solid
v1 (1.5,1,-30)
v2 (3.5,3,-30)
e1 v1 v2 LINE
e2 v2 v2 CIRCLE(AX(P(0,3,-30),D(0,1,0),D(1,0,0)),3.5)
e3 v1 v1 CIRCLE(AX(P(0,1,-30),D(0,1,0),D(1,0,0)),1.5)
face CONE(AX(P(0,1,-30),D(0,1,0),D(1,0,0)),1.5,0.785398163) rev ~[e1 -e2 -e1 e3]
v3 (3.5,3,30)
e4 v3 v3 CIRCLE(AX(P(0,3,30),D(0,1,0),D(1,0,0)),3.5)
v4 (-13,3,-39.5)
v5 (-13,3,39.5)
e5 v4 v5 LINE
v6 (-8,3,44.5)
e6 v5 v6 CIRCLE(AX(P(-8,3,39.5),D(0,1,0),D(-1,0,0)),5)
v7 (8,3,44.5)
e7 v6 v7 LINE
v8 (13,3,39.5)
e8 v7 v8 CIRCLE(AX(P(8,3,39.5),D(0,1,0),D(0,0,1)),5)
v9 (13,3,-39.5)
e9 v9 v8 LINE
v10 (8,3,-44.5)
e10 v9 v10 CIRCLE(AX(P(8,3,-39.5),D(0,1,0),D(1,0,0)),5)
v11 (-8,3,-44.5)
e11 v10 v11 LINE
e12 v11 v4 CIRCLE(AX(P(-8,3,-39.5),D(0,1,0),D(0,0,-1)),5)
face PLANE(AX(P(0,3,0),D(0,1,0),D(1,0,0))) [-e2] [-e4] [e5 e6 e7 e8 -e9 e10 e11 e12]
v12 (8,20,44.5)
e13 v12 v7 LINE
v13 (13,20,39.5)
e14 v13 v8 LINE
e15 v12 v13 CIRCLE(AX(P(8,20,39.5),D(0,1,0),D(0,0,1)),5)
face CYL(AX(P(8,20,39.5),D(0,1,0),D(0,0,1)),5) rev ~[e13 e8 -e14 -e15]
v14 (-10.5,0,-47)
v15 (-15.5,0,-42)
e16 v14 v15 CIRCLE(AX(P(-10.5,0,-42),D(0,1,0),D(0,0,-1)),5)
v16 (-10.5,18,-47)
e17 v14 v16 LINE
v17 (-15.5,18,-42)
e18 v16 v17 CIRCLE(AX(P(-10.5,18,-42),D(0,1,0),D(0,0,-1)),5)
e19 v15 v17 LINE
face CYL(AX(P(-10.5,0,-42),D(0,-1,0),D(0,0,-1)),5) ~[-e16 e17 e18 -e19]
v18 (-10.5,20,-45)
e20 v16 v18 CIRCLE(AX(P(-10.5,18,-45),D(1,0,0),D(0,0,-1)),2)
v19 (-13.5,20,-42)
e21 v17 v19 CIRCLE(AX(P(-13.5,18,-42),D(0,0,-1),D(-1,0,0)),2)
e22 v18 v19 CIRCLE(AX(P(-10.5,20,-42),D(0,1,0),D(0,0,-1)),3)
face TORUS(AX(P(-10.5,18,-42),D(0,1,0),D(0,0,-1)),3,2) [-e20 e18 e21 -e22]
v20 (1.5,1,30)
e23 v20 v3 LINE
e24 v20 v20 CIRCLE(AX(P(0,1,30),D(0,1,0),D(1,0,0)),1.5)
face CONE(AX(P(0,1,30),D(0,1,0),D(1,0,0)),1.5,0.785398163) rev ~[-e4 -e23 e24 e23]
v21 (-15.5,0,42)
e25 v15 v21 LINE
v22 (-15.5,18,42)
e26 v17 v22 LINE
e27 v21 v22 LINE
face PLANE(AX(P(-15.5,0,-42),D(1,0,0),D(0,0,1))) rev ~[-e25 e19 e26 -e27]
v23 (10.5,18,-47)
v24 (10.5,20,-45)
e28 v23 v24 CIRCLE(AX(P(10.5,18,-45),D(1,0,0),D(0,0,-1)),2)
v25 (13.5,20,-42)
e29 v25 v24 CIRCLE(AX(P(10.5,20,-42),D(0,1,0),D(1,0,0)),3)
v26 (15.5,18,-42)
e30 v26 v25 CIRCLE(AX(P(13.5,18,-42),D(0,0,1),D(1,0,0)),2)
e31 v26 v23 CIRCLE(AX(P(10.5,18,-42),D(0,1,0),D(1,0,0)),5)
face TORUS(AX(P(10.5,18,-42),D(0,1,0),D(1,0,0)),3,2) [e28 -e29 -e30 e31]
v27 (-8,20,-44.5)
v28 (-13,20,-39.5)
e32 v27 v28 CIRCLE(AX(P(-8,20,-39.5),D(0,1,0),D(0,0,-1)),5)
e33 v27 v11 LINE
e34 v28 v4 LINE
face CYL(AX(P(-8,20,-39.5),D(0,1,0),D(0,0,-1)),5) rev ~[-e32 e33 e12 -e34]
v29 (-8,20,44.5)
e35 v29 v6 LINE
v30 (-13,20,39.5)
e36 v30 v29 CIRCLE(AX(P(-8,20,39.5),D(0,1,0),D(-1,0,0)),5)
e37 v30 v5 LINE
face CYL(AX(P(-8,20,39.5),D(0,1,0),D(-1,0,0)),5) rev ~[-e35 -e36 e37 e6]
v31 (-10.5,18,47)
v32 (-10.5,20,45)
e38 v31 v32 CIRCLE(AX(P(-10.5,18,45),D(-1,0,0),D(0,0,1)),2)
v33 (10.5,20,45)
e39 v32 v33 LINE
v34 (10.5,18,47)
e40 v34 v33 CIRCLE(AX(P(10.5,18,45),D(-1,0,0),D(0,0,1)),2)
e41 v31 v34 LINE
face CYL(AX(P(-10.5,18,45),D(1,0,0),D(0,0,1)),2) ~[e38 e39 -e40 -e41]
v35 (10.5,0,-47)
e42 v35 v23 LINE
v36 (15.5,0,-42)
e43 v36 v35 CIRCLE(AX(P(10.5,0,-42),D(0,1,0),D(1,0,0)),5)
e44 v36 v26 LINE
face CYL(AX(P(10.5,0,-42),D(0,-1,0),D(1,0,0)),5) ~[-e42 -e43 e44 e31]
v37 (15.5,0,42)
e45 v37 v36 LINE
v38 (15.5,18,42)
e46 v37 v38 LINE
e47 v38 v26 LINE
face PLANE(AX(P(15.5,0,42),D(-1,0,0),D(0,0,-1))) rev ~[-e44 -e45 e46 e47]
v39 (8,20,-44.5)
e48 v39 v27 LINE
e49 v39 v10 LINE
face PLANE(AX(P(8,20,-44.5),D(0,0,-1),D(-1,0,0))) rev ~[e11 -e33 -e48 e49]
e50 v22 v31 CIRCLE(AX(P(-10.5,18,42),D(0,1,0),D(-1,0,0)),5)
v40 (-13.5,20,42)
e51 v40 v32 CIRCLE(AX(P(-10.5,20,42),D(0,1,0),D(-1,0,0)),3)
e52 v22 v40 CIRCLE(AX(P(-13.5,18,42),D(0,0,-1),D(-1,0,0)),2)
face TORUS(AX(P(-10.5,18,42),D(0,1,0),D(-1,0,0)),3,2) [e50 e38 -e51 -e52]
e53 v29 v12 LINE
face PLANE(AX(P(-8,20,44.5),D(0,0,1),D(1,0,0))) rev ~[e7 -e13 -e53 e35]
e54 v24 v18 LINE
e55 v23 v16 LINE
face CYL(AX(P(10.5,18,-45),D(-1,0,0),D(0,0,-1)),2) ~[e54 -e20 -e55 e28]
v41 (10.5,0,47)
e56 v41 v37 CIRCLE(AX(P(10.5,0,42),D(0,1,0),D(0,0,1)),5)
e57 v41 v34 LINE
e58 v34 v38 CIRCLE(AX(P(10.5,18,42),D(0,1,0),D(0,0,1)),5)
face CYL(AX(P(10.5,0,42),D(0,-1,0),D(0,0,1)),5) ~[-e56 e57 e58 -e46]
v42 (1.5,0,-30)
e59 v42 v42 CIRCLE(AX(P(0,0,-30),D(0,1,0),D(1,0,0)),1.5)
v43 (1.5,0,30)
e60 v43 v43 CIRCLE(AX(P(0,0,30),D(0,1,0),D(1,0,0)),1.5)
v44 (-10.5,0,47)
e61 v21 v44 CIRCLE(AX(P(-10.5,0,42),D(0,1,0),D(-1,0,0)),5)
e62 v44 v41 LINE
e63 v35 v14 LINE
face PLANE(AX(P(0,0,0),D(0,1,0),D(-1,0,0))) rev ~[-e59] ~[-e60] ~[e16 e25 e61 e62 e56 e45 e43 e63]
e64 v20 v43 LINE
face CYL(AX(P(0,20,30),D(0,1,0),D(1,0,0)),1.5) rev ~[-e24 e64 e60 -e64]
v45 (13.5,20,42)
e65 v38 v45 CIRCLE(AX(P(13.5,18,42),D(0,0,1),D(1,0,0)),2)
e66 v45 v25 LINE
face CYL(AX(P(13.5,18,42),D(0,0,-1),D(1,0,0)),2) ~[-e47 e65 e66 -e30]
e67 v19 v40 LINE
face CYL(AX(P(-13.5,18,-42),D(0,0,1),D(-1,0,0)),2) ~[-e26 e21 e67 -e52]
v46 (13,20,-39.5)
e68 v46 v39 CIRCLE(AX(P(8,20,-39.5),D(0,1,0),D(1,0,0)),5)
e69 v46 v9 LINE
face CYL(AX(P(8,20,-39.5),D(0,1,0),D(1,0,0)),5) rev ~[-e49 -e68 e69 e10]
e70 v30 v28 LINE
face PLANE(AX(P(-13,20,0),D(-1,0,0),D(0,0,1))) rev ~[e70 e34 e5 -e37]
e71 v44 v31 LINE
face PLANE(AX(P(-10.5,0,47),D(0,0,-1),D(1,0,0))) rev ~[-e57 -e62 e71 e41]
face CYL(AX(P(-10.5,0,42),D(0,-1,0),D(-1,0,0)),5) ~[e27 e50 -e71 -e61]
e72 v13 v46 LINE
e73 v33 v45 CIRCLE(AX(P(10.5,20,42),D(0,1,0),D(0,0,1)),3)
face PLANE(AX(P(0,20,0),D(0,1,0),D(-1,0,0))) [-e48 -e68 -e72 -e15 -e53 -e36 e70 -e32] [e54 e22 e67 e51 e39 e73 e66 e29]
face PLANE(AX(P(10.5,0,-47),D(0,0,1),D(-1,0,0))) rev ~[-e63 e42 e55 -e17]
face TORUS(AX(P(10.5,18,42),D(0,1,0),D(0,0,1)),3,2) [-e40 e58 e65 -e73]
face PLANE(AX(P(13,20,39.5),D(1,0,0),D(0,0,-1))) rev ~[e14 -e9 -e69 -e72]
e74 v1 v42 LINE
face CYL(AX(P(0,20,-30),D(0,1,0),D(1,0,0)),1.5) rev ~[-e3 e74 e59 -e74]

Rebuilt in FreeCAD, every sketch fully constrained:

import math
import FreeCAD as App
import Part
import Sketcher
from FreeCAD import Vector
Q = App.Units.Quantity


def edges_at(feature, points):
    """Names of the edges that pass closest to the given points."""
    edges = feature.Shape.Edges
    near = lambda p: min(range(len(edges)), key=lambda i: edges[i].distToShape(Part.Vertex(*p))[0])
    return sorted({f"Edge{near(p) + 1}" for p in points})

doc = App.newDocument("Part")
body = doc.addObject("PartDesign::Body", "Body")

sketch1 = body.newObject("Sketcher::SketchObject", "Sketch")
sketch1.AttachmentSupport = (doc.getObject("XZ_Plane"), [""])
sketch1.MapMode = "FlatFace"
sketch1.addGeometry([
    Part.ArcOfCircle(Part.Circle(Vector(-10.5, 42, 0), Vector(0, 0, 1), 5), math.radians(90), math.radians(180)),
    Part.LineSegment(Vector(-10.5, 47, 0), Vector(10.5, 47, 0)),
    Part.ArcOfCircle(Part.Circle(Vector(10.5, 42, 0), Vector(0, 0, 1), 5), math.radians(0), math.radians(90)),
    Part.LineSegment(Vector(15.5, 42, 0), Vector(15.5, -42, 0)),
    Part.ArcOfCircle(Part.Circle(Vector(10.5, -42, 0), Vector(0, 0, 1), 5), math.radians(-90), math.radians(0)),
    Part.LineSegment(Vector(10.5, -47, 0), Vector(-10.5, -47, 0)),
    Part.ArcOfCircle(Part.Circle(Vector(-10.5, -42, 0), Vector(0, 0, 1), 5), math.radians(180), math.radians(270)),
    Part.LineSegment(Vector(-15.5, -42, 0), Vector(-15.5, 42, 0)),
], False)
sketch1.addConstraint([
    Sketcher.Constraint("Tangent", 0, 1, 1, 1),
    Sketcher.Constraint("Tangent", 1, 2, 2, 2),
    Sketcher.Constraint("Tangent", 2, 1, 3, 1),
    Sketcher.Constraint("Tangent", 3, 2, 4, 2),
    Sketcher.Constraint("Tangent", 4, 1, 5, 1),
    Sketcher.Constraint("Tangent", 5, 2, 6, 2),
    Sketcher.Constraint("Tangent", 6, 1, 7, 1),
    Sketcher.Constraint("Tangent", 7, 2, 0, 2),
    Sketcher.Constraint("Horizontal", 1),
    Sketcher.Constraint("Vertical", 3),
    Sketcher.Constraint("Horizontal", 5),
    Sketcher.Constraint("Vertical", 7),
    Sketcher.Constraint("Equal", 0, 2),
    Sketcher.Constraint("Equal", 2, 4),
    Sketcher.Constraint("Equal", 4, 6),
    Sketcher.Constraint("Symmetric", 0, 3, 4, 3, -1, 1),
    Sketcher.Constraint("Radius", 0, Q("5 mm")),
    Sketcher.Constraint("DistanceX", 6, 1, 3, 2, Q("31 mm")),
    Sketcher.Constraint("DistanceY", 3, 2, 3, 1, Q("84 mm")),
])
pad1 = body.newObject("PartDesign::Pad", "Pad")
pad1.Profile = sketch1
pad1.Length = 20
pad1.Reversed = True

sketch2 = body.newObject("Sketcher::SketchObject", "Sketch001")
sketch2.AttachmentSupport = (doc.getObject("XZ_Plane"), [""])
sketch2.MapMode = "FlatFace"
sketch2.AttachmentOffset = App.Placement(Vector(0, 0, -20), App.Rotation())
sketch2.addGeometry([
    Part.ArcOfCircle(Part.Circle(Vector(-8, 39.5, 0), Vector(0, 0, 1), 5), math.radians(90), math.radians(180)),
    Part.LineSegment(Vector(-8, 44.5, 0), Vector(8, 44.5, 0)),
    Part.ArcOfCircle(Part.Circle(Vector(8, 39.5, 0), Vector(0, 0, 1), 5), math.radians(0), math.radians(90)),
    Part.LineSegment(Vector(13, 39.5, 0), Vector(13, -39.5, 0)),
    Part.ArcOfCircle(Part.Circle(Vector(8, -39.5, 0), Vector(0, 0, 1), 5), math.radians(-90), math.radians(0)),
    Part.LineSegment(Vector(8, -44.5, 0), Vector(-8, -44.5, 0)),
    Part.ArcOfCircle(Part.Circle(Vector(-8, -39.5, 0), Vector(0, 0, 1), 5), math.radians(180), math.radians(270)),
    Part.LineSegment(Vector(-13, -39.5, 0), Vector(-13, 39.5, 0)),
], False)
sketch2.addConstraint([
    Sketcher.Constraint("Tangent", 0, 1, 1, 1),
    Sketcher.Constraint("Tangent", 1, 2, 2, 2),
    Sketcher.Constraint("Tangent", 2, 1, 3, 1),
    Sketcher.Constraint("Tangent", 3, 2, 4, 2),
    Sketcher.Constraint("Tangent", 4, 1, 5, 1),
    Sketcher.Constraint("Tangent", 5, 2, 6, 2),
    Sketcher.Constraint("Tangent", 6, 1, 7, 1),
    Sketcher.Constraint("Tangent", 7, 2, 0, 2),
    Sketcher.Constraint("Horizontal", 1),
    Sketcher.Constraint("Vertical", 3),
    Sketcher.Constraint("Horizontal", 5),
    Sketcher.Constraint("Vertical", 7),
    Sketcher.Constraint("Equal", 0, 2),
    Sketcher.Constraint("Equal", 2, 4),
    Sketcher.Constraint("Equal", 4, 6),
    Sketcher.Constraint("Symmetric", 0, 3, 4, 3, -1, 1),
    Sketcher.Constraint("Radius", 0, Q("5 mm")),
    Sketcher.Constraint("DistanceX", 6, 1, 3, 2, Q("26 mm")),
    Sketcher.Constraint("DistanceY", 3, 2, 3, 1, Q("79 mm")),
])
pocket1 = body.newObject("PartDesign::Pocket", "Pocket")
pocket1.Profile = sketch2
pocket1.Length = 17
pocket1.Reversed = True

sketch3 = body.newObject("Sketcher::SketchObject", "Sketch002")
sketch3.AttachmentSupport = (doc.getObject("XZ_Plane"), [""])
sketch3.MapMode = "FlatFace"
sketch3.AttachmentOffset = App.Placement(Vector(0, 0, -20), App.Rotation())
sketch3.addGeometry([
    Part.Circle(Vector(0, -30, 0), Vector(0, 0, 1), 1.5),
    Part.Circle(Vector(0, 30, 0), Vector(0, 0, 1), 1.5),
], False)
sketch3.addConstraint([
    Sketcher.Constraint("Equal", 0, 1),
    Sketcher.Constraint("Symmetric", 0, 3, 1, 3, -1, 1),
    Sketcher.Constraint("PointOnObject", 0, 3, -2),
    Sketcher.Constraint("Diameter", 0, Q("3 mm")),
    Sketcher.Constraint("DistanceY", 0, 3, -1, 1, Q("30 mm")),
])
pocket2 = body.newObject("PartDesign::Pocket", "Pocket001")
pocket2.Profile = sketch3
pocket2.Length = 20
pocket2.Reversed = True
doc.recompute()

chamfer = body.newObject("PartDesign::Chamfer", "Chamfer")
chamfer.Base = (pocket2, edges_at(pocket2, [(-1.5, 3, -30), (-1.5, 3, 30)]))
chamfer.Size = 2
doc.recompute()

fillet = body.newObject("PartDesign::Fillet", "Fillet")
fillet.Base = (chamfer, edges_at(chamfer, [
    (-15.5, 20, 0),
    (-14.036, 20, 45.535),
    (0, 20, 47),
    (14.036, 20, 45.535),
    (15.5, 20, 0),
    (14.036, 20, -45.535),
    (0, 20, -47),
    (-14.036, 20, -45.535),
]))
fillet.Radius = 2

doc.recompute()
